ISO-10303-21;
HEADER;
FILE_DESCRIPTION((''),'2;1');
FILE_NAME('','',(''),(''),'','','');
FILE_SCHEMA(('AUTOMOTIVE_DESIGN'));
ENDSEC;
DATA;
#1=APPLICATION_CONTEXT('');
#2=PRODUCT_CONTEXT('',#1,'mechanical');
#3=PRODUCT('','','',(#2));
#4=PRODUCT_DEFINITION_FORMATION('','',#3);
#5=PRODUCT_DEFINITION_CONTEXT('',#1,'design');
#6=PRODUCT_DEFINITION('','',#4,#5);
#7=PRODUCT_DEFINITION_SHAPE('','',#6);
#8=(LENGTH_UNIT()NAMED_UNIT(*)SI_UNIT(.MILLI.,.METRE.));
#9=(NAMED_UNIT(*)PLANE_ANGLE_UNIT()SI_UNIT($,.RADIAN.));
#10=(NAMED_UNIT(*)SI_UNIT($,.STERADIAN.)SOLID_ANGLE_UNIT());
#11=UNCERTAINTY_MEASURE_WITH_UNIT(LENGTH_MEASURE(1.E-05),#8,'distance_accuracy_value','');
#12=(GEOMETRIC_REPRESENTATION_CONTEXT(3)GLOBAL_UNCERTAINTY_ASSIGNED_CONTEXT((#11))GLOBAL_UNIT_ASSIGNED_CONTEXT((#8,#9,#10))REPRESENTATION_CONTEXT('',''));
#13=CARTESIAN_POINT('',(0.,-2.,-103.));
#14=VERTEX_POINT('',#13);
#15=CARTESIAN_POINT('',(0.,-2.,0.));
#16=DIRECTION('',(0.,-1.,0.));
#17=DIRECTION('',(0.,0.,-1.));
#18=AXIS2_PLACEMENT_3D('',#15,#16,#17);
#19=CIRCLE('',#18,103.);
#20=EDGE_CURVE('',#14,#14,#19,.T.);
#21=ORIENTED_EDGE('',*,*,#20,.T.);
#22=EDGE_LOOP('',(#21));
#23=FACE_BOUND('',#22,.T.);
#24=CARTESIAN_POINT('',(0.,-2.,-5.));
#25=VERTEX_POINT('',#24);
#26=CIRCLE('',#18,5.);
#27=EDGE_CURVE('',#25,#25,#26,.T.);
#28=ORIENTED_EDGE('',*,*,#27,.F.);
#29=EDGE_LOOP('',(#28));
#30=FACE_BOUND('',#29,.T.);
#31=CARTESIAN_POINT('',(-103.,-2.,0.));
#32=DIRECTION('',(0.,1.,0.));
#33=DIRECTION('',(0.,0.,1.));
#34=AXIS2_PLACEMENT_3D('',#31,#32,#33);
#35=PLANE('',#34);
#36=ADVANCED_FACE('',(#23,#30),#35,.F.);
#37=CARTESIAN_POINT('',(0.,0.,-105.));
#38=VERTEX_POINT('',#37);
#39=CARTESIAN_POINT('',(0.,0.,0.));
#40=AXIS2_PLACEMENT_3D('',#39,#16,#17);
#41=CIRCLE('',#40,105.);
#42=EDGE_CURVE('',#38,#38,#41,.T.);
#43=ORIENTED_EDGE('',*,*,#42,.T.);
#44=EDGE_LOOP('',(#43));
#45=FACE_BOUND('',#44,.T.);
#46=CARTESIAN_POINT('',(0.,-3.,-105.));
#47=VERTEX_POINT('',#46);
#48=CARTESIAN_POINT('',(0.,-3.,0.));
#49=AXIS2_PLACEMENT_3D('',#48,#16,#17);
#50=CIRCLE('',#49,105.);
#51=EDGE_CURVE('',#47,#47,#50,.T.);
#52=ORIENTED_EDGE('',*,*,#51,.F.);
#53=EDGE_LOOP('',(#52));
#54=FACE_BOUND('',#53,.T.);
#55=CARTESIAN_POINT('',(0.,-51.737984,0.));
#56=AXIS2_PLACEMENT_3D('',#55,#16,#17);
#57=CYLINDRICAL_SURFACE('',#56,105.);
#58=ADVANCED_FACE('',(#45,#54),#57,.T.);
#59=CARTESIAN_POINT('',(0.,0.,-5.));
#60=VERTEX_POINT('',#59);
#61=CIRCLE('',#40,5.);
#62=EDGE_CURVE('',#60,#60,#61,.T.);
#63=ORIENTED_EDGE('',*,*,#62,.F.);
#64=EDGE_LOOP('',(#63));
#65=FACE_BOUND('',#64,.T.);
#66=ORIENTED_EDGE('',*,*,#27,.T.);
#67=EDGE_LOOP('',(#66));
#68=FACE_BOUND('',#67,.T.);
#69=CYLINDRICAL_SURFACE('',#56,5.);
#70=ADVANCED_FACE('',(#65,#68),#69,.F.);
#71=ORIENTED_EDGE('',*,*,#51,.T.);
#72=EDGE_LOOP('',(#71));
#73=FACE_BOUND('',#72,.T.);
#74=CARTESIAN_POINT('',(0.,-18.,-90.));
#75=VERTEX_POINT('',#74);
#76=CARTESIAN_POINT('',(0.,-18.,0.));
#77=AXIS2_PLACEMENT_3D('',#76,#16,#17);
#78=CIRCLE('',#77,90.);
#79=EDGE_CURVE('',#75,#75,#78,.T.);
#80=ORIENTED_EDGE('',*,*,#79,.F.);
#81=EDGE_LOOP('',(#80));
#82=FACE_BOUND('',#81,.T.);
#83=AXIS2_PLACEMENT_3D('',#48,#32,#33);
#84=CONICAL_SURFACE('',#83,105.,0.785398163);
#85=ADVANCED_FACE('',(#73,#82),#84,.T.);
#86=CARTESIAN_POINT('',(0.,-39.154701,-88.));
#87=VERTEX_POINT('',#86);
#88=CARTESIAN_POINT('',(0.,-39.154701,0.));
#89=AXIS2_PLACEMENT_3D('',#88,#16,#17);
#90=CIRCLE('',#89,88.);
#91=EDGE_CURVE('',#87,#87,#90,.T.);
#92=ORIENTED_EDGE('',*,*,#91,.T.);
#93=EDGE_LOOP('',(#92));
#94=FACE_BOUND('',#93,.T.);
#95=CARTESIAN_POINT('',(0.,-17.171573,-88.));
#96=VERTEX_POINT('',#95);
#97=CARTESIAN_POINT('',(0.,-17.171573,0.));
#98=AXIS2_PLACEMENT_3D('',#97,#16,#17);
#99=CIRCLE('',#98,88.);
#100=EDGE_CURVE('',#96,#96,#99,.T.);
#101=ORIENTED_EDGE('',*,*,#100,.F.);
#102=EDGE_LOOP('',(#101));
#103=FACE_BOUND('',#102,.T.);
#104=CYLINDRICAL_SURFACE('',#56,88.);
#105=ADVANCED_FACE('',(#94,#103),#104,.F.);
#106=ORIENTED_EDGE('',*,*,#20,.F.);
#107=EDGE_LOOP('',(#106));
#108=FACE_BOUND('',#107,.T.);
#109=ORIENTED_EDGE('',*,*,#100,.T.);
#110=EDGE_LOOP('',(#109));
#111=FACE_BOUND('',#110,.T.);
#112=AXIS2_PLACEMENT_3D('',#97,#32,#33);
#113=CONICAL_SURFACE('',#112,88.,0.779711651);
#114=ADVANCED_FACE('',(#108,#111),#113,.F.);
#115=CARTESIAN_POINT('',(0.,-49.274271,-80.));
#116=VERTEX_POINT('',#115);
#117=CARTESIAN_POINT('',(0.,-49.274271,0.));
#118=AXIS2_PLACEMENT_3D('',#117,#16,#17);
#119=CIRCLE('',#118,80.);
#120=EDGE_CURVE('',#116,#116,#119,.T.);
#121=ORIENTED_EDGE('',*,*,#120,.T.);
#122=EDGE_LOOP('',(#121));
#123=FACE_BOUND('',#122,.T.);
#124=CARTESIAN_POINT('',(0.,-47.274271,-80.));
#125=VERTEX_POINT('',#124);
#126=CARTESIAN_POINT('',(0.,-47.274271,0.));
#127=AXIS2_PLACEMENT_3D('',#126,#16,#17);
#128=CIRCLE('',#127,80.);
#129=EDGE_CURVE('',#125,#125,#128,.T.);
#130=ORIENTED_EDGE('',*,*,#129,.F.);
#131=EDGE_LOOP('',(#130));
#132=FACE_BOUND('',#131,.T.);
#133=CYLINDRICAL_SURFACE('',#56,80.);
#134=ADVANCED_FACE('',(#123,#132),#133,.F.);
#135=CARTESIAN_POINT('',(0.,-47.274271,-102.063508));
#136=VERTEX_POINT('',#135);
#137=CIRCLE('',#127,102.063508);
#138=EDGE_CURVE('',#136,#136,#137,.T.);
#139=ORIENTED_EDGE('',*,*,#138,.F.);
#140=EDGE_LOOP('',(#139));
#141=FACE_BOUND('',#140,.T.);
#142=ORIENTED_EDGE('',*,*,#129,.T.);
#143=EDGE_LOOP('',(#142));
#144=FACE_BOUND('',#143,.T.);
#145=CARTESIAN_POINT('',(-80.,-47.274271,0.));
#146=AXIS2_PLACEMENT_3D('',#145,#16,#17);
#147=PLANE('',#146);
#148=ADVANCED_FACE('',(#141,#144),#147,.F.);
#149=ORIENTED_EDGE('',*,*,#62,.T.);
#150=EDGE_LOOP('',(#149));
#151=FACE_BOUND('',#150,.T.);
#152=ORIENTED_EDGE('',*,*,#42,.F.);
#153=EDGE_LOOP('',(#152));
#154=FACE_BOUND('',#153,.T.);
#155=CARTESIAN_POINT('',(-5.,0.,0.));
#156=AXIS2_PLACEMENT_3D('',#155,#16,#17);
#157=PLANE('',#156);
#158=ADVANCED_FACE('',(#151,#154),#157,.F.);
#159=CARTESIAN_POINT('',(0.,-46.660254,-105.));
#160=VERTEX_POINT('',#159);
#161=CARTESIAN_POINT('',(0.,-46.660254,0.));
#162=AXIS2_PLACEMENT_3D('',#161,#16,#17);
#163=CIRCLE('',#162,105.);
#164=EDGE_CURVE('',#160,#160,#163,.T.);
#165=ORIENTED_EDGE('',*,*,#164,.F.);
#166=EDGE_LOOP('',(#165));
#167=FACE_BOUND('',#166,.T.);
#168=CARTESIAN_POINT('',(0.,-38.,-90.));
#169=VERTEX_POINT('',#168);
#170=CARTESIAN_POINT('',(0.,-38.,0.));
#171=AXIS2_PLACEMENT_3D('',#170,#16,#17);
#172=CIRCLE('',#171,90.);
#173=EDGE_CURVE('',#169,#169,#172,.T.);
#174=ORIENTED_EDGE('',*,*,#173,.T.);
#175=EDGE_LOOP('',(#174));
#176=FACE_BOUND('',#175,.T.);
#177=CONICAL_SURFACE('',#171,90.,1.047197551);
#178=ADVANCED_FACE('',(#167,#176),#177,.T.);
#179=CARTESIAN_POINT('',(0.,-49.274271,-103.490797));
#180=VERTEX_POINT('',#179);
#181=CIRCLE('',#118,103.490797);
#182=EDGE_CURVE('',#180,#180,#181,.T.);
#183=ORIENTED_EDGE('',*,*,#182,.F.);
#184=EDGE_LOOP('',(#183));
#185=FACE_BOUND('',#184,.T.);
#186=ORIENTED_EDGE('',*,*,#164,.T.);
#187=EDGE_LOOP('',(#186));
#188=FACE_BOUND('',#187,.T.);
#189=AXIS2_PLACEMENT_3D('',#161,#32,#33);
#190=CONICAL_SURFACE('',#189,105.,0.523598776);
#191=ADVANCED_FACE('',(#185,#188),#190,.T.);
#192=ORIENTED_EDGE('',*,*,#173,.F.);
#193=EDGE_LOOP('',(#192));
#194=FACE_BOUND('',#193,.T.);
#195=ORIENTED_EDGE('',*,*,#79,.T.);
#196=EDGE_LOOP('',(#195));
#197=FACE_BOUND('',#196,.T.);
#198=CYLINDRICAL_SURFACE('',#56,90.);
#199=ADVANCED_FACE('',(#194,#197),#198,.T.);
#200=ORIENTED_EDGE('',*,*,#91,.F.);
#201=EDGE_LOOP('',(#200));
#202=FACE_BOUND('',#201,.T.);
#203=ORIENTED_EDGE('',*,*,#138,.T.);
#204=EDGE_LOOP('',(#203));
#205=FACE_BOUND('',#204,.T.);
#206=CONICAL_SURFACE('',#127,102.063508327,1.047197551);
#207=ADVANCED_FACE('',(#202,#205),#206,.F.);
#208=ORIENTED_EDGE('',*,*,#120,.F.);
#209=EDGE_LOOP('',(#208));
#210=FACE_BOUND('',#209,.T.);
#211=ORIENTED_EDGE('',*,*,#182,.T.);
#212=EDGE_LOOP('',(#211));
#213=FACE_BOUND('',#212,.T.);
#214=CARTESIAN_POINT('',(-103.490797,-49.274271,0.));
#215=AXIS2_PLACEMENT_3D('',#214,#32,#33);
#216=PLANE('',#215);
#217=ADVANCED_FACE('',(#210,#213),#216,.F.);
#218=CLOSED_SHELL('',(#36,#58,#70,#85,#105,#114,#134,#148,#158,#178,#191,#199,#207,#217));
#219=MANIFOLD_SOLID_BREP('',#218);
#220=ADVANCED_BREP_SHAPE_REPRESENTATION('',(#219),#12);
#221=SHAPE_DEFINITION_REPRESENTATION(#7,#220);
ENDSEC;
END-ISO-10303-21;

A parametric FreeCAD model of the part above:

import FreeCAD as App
import Part
import Sketcher
Q = App.Units.Quantity

doc = App.newDocument("Part")
params = doc.addObject("Spreadsheet::Sheet", "Params")
for row, (alias, value) in enumerate([
    ("sketch1_width", "100 mm"),
    ("sketch1_width2", "98 mm"),
    ("sketch1_height", "3 mm"),
    ("sketch1_height2", "20 mm"),
    ("sketch1_height3", "2 mm"),
    ("revolution_angle", "360 deg"),
], start=1):
    params.set(f"A{row}", alias)
    params.set(f"B{row}", "=" + value)
    params.setAlias(f"B{row}", alias)

body = doc.addObject("PartDesign::Body", "Body")

# Sketch on XY plane
sketch1 = doc.addObject("Sketcher::SketchObject", "Sketch")
body.addObject(sketch1)
sketch1.AttachmentSupport = (doc.XY_Plane, [""])
sketch1.MapMode = "FlatFace"
sketch1.addGeometry([
    Part.LineSegment(App.Vector(-5, 0, 0), App.Vector(-105, 0, 0)),  # 0
    Part.LineSegment(App.Vector(-105, 0, 0), App.Vector(-105, -3, 0)),  # 1
    Part.LineSegment(App.Vector(-105, -3, 0), App.Vector(-90, -18, 0)),  # 2
    Part.LineSegment(App.Vector(-90, -18, 0), App.Vector(-90, -38, 0)),  # 3
    Part.LineSegment(App.Vector(-90, -38, 0), App.Vector(-105, -46.660254, 0)),  # 4
    Part.LineSegment(App.Vector(-105, -46.660254, 0), App.Vector(-103.490797, -49.274271, 0)),  # 5
    Part.LineSegment(App.Vector(-103.490797, -49.274271, 0), App.Vector(-80, -49.274271, 0)),  # 6
    Part.LineSegment(App.Vector(-80, -49.274271, 0), App.Vector(-80, -47.274271, 0)),  # 7
    Part.LineSegment(App.Vector(-80, -47.274271, 0), App.Vector(-102.063508, -47.274271, 0)),  # 8
    Part.LineSegment(App.Vector(-102.063508, -47.274271, 0), App.Vector(-88, -39.154701, 0)),  # 9
    Part.LineSegment(App.Vector(-88, -39.154701, 0), App.Vector(-88, -17.171573, 0)),  # 10
    Part.LineSegment(App.Vector(-88, -17.171573, 0), App.Vector(-103, -2, 0)),  # 11
    Part.LineSegment(App.Vector(-103, -2, 0), App.Vector(-5, -2, 0)),  # 12
    Part.LineSegment(App.Vector(-5, -2, 0), App.Vector(-5, 0, 0)),  # 13
], False)
sketch1.addConstraint([
    Sketcher.Constraint("Coincident", 0, 2, 1, 1),
    Sketcher.Constraint("Coincident", 1, 2, 2, 1),
    Sketcher.Constraint("Coincident", 2, 2, 3, 1),
    Sketcher.Constraint("Coincident", 3, 2, 4, 1),
    Sketcher.Constraint("Coincident", 4, 2, 5, 1),
    Sketcher.Constraint("Coincident", 5, 2, 6, 1),
    Sketcher.Constraint("Coincident", 6, 2, 7, 1),
    Sketcher.Constraint("Coincident", 7, 2, 8, 1),
    Sketcher.Constraint("Coincident", 8, 2, 9, 1),
    Sketcher.Constraint("Coincident", 9, 2, 10, 1),
    Sketcher.Constraint("Coincident", 10, 2, 11, 1),
    Sketcher.Constraint("Coincident", 11, 2, 12, 1),
    Sketcher.Constraint("Coincident", 12, 2, 13, 1),
    Sketcher.Constraint("Coincident", 13, 2, 0, 1),
    Sketcher.Constraint("Horizontal", 0),
    Sketcher.Constraint("Vertical", 1),
    Sketcher.Constraint("Vertical", 3),
    Sketcher.Constraint("Horizontal", 6),
    Sketcher.Constraint("Vertical", 7),
    Sketcher.Constraint("Horizontal", 8),
    Sketcher.Constraint("Vertical", 10),
    Sketcher.Constraint("Horizontal", 12),
    Sketcher.Constraint("Vertical", 13),
    Sketcher.Constraint("PointOnObject", 0, 2, -1),
    Sketcher.Constraint("Perpendicular", 4, 5),
    Sketcher.Constraint("Perpendicular", 5, 9),
    Sketcher.Constraint("Vertical", 1, 2, 4, 2),
    Sketcher.Constraint("Equal", 7, 13),
    Sketcher.Constraint("DistanceX", 0, 2, 0, 1, 100.0),
    Sketcher.Constraint("DistanceX", 12, 1, 12, 2, 98.0),
    Sketcher.Constraint("DistanceY", 1, 2, 1, 1, 3.0),
    Sketcher.Constraint("DistanceY", 3, 2, 3, 1, 20.0),
    Sketcher.Constraint("DistanceY", 7, 1, 7, 2, 2.0),
    Sketcher.Constraint("Angle", 2, Q("-45 deg")),
    Sketcher.Constraint("Angle", 4, Q("-150 deg")),
    Sketcher.Constraint("DistanceX", 0, 2, -1, 1, 105.0),
    Sketcher.Constraint("DistanceX", 2, 2, -1, 1, 90.0),
    Sketcher.Constraint("DistanceX", 6, 2, -1, 1, 80.0),
    Sketcher.Constraint("DistanceX", 9, 2, -1, 1, 88.0),
    Sketcher.Constraint("DistanceX", 8, 2, 8, 1, 22.063508),
    Sketcher.Constraint("DistanceY", 9, 2, -1, 1, 39.154701),
    Sketcher.Constraint("Distance", 11, 21.334869),
])
sketch1.setExpression("Constraints[28]", "Params.sketch1_width")
sketch1.setExpression("Constraints[29]", "Params.sketch1_width2")
sketch1.setExpression("Constraints[30]", "Params.sketch1_height")
sketch1.setExpression("Constraints[31]", "Params.sketch1_height2")
sketch1.setExpression("Constraints[32]", "Params.sketch1_height3")
revolution = doc.addObject("PartDesign::Revolution", "Revolution")
body.addObject(revolution)
revolution.Profile = sketch1
revolution.ReferenceAxis = (sketch1, ["V_Axis"])
revolution.setExpression("Angle", "Params.revolution_angle")

doc.recompute()
